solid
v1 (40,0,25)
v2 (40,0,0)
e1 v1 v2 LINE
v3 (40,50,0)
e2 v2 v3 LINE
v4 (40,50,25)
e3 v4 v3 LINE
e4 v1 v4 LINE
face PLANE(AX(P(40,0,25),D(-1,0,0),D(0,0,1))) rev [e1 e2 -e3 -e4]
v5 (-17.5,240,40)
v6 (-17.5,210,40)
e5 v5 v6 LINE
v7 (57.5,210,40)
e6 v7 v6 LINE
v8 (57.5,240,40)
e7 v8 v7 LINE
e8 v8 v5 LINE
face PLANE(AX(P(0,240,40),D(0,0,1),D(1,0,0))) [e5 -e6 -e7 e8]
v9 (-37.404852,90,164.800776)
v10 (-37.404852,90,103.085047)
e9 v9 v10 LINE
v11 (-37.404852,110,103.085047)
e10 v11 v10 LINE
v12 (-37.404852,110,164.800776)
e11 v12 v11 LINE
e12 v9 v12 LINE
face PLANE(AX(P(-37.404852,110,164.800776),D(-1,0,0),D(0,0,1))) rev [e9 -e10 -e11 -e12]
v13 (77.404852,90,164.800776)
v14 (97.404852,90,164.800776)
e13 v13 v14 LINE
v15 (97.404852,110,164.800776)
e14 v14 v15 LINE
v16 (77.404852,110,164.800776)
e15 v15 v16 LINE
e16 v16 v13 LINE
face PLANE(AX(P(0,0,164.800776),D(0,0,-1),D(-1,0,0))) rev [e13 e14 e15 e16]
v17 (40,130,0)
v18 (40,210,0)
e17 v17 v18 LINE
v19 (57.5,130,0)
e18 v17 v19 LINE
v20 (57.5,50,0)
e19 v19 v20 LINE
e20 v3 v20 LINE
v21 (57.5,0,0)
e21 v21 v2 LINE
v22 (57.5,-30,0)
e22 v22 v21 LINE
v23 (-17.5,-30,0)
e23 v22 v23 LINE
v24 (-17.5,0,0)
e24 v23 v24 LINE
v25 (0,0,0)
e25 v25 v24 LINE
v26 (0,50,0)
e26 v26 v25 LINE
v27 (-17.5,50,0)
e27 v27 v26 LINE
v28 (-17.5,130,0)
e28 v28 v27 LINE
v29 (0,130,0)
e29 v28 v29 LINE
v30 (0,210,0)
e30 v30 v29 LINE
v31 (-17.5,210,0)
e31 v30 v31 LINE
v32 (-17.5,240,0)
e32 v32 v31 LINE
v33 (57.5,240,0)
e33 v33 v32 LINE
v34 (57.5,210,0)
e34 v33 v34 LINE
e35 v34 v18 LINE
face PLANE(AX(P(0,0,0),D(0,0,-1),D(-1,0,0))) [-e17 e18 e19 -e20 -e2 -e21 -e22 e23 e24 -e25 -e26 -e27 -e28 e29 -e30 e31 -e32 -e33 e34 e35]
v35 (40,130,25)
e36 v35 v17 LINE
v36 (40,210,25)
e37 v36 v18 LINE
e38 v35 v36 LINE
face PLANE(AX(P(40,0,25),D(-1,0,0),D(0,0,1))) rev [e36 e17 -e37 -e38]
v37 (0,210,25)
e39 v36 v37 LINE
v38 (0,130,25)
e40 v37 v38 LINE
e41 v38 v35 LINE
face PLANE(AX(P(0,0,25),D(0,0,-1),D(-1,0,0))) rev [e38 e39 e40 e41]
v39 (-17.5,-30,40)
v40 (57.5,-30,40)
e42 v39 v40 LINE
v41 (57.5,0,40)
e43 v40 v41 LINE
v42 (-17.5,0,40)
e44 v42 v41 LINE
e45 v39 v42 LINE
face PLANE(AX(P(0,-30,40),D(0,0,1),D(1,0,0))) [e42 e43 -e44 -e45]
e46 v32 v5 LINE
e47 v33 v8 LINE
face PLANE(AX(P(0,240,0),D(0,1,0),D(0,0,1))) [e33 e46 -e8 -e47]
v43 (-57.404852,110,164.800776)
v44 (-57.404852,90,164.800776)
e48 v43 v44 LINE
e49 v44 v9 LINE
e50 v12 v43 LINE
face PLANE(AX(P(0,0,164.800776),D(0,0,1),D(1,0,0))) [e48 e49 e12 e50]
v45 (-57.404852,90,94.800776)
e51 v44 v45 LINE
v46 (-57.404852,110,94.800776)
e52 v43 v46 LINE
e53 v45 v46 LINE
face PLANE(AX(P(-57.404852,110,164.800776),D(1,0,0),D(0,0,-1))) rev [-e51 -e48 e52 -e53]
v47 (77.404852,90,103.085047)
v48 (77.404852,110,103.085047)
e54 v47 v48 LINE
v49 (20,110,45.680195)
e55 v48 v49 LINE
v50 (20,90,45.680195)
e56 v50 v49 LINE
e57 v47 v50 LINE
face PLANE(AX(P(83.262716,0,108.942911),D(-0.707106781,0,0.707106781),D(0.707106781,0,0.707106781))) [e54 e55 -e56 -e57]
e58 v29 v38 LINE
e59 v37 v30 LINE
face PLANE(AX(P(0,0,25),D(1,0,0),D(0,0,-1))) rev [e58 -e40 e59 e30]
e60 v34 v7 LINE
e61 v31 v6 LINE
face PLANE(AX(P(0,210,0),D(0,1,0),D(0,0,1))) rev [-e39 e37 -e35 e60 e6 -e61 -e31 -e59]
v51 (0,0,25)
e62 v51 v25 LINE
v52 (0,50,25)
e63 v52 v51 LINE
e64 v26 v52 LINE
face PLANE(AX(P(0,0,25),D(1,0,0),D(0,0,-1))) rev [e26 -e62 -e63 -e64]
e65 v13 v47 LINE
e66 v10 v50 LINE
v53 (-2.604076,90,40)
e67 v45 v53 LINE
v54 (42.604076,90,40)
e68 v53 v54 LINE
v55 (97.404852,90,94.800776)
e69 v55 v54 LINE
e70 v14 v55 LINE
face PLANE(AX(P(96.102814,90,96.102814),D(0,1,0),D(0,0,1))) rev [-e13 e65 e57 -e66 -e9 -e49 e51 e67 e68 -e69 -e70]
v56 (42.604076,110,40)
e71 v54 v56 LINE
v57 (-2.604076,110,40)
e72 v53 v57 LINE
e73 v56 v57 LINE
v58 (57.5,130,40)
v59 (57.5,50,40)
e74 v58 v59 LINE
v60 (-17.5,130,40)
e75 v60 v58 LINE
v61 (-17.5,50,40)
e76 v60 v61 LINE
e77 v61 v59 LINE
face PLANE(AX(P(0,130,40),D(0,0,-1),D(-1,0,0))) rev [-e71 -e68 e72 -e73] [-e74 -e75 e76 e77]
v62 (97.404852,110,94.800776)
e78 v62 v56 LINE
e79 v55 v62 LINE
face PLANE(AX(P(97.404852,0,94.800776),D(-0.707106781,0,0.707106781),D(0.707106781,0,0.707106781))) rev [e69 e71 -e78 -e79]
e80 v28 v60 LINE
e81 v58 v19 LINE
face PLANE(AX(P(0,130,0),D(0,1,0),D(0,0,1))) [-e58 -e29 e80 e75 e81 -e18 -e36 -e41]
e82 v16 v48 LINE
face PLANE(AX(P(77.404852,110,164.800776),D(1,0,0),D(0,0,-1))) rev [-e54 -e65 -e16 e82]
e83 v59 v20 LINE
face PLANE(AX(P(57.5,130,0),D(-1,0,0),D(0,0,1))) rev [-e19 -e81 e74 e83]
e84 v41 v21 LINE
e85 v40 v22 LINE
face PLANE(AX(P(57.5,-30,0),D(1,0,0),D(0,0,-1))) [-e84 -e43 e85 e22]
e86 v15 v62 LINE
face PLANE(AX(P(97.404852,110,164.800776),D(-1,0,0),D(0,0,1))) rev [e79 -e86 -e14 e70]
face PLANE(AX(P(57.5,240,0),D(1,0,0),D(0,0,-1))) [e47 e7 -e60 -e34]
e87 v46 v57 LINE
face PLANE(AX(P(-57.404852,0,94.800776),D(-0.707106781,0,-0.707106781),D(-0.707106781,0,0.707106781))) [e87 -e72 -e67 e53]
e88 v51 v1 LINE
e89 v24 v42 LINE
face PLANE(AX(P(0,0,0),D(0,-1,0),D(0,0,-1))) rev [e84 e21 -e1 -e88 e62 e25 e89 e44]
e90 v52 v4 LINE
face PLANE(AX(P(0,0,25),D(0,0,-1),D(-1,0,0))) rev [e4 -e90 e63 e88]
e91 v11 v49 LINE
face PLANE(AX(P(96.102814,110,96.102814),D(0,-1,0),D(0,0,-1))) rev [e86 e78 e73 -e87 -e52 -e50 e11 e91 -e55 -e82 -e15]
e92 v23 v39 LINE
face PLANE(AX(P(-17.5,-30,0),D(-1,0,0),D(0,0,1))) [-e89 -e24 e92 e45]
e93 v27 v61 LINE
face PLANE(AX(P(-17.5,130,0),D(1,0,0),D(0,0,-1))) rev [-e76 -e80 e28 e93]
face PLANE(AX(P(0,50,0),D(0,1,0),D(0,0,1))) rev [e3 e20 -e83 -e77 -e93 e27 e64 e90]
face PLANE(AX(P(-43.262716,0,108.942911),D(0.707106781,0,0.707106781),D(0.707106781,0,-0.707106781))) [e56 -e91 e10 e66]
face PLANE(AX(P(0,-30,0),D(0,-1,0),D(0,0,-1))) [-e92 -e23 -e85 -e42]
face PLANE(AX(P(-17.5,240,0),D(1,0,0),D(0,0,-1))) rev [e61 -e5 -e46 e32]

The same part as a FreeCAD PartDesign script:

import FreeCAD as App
import Part
import Sketcher

V = App.Vector

doc = App.newDocument("Part")
body = doc.addObject("PartDesign::Body", "Body")

sketch1 = doc.addObject("Sketcher::SketchObject", "Sketch")
body.addObject(sketch1)
sketch1.AttachmentSupport = (doc.XY_Plane, [""])
sketch1.MapMode = "FlatFace"
sketch1.addGeometry([
    Part.LineSegment(V(0, 210, 0), V(0, 0, 0)),
    Part.LineSegment(V(0, 0, 0), V(40, 0, 0)),
    Part.LineSegment(V(40, 0, 0), V(40, 210, 0)),
    Part.LineSegment(V(40, 210, 0), V(0, 210, 0)),
], False)
sketch1.addConstraint([
    Sketcher.Constraint("Coincident", 0, 2, 1, 1),
    Sketcher.Constraint("Coincident", 1, 2, 2, 1),
    Sketcher.Constraint("Coincident", 2, 2, 3, 1),
    Sketcher.Constraint("Coincident", 3, 2, 0, 1),
    Sketcher.Constraint("Vertical", 0),
    Sketcher.Constraint("Horizontal", 1),
    Sketcher.Constraint("Vertical", 2),
    Sketcher.Constraint("Horizontal", 3),
    Sketcher.Constraint("Coincident", 0, 2, -1, 1),
    Sketcher.Constraint("DistanceX", 1, 1, 1, 2, 40.0),
    Sketcher.Constraint("DistanceY", 0, 2, 0, 1, 210.0),
])
pad1 = doc.addObject("PartDesign::Pad", "Pad")
body.addObject(pad1)
pad1.Profile = sketch1
pad1.Length = 25

sketch2 = doc.addObject("Sketcher::SketchObject", "Sketch001")
body.addObject(sketch2)
sketch2.AttachmentSupport = (doc.XZ_Plane, [""])
sketch2.MapMode = "FlatFace"
sketch2.AttachmentOffset = App.Placement(V(0, 0, -210), App.Rotation())
sketch2.addGeometry([
    Part.LineSegment(V(-18, 0, 0), V(-18, 40, 0)),
    Part.LineSegment(V(-18, 40, 0), V(58, 40, 0)),
    Part.LineSegment(V(58, 40, 0), V(58, 0, 0)),
    Part.LineSegment(V(58, 0, 0), V(-18, 0, 0)),
], False)
sketch2.addConstraint([
    Sketcher.Constraint("Coincident", 0, 2, 1, 1),
    Sketcher.Constraint("Coincident", 1, 2, 2, 1),
    Sketcher.Constraint("Coincident", 2, 2, 3, 1),
    Sketcher.Constraint("Coincident", 3, 2, 0, 1),
    Sketcher.Constraint("Vertical", 0),
    Sketcher.Constraint("Horizontal", 1),
    Sketcher.Constraint("Vertical", 2),
    Sketcher.Constraint("Horizontal", 3),
    Sketcher.Constraint("PointOnObject", 2, 2, -1),
    Sketcher.Constraint("DistanceX", 1, 1, 1, 2, 75.0),
    Sketcher.Constraint("DistanceY", 0, 1, 0, 2, 40.0),
    Sketcher.Constraint("DistanceX", 0, 2, -1, 1, 17.5),
])
pad2 = doc.addObject("PartDesign::Pad", "Pad001")
body.addObject(pad2)
pad2.Profile = sketch2
pad2.Length = 30
pad2.Reversed = True

sketch3 = doc.addObject("Sketcher::SketchObject", "Sketch002")
body.addObject(sketch3)
sketch3.AttachmentSupport = (doc.XZ_Plane, [""])
sketch3.MapMode = "FlatFace"
sketch3.addGeometry([
    Part.LineSegment(V(58, 0, 0), V(58, 40, 0)),
    Part.LineSegment(V(58, 40, 0), V(-18, 40, 0)),
    Part.LineSegment(V(-18, 40, 0), V(-18, 0, 0)),
    Part.LineSegment(V(-18, 0, 0), V(58, 0, 0)),
], False)
sketch3.addConstraint([
    Sketcher.Constraint("Coincident", 0, 2, 1, 1),
    Sketcher.Constraint("Coincident", 1, 2, 2, 1),
    Sketcher.Constraint("Coincident", 2, 2, 3, 1),
    Sketcher.Constraint("Coincident", 3, 2, 0, 1),
    Sketcher.Constraint("Vertical", 0),
    Sketcher.Constraint("Horizontal", 1),
    Sketcher.Constraint("Vertical", 2),
    Sketcher.Constraint("Horizontal", 3),
    Sketcher.Constraint("PointOnObject", 2, 2, -1),
    Sketcher.Constraint("DistanceX", 1, 2, 1, 1, 75.0),
    Sketcher.Constraint("DistanceY", 0, 1, 0, 2, 40.0),
    Sketcher.Constraint("DistanceX", -1, 1, 0, 2, 57.5),
])
pad3 = doc.addObject("PartDesign::Pad", "Pad002")
body.addObject(pad3)
pad3.Profile = sketch3
pad3.Length = 30

sketch4 = doc.addObject("Sketcher::SketchObject", "Sketch003")
body.addObject(sketch4)
sketch4.AttachmentSupport = (doc.XZ_Plane, [""])
sketch4.MapMode = "FlatFace"
sketch4.AttachmentOffset = App.Placement(V(0, 0, -50), App.Rotation())
sketch4.addGeometry([
    Part.LineSegment(V(58, 0, 0), V(-18, 0, 0)),
    Part.LineSegment(V(-18, 0, 0), V(-18, 40, 0)),
    Part.LineSegment(V(-18, 40, 0), V(58, 40, 0)),
    Part.LineSegment(V(58, 40, 0), V(58, 0, 0)),
], False)
sketch4.addConstraint([
    Sketcher.Constraint("Coincident", 0, 2, 1, 1),
    Sketcher.Constraint("Coincident", 1, 2, 2, 1),
    Sketcher.Constraint("Coincident", 2, 2, 3, 1),
    Sketcher.Constraint("Coincident", 3, 2, 0, 1),
    Sketcher.Constraint("Horizontal", 0),
    Sketcher.Constraint("Vertical", 1),
    Sketcher.Constraint("Horizontal", 2),
    Sketcher.Constraint("Vertical", 3),
    Sketcher.Constraint("PointOnObject", 0, 2, -1),
    Sketcher.Constraint("DistanceX", 0, 2, 0, 1, 75.0),
    Sketcher.Constraint("DistanceY", 1, 1, 1, 2, 40.0),
    Sketcher.Constraint("DistanceX", 0, 2, -1, 1, 17.5),
])
pad4 = doc.addObject("PartDesign::Pad", "Pad003")
body.addObject(pad4)
pad4.Profile = sketch4
pad4.Length = 80
pad4.Reversed = True

sketch5 = doc.addObject("Sketcher::SketchObject", "Sketch004")
body.addObject(sketch5)
sketch5.Placement = App.Placement(V(11.25, 0, 11.25), App.Rotation(V(0.707106781, 0, -0.707106781), V(0, 0.999999999, 0), V(0.707106781, 0, 0.707106781), "ZXY"))
sketch5.addGeometry([
    Part.LineSegment(V(-18, 110, 0), V(-18, 90, 0)),
    Part.LineSegment(V(-18, 90, 0), V(2, 90, 0)),
    Part.LineSegment(V(2, 90, 0), V(2, 110, 0)),
    Part.LineSegment(V(2, 110, 0), V(-18, 110, 0)),
], False)
sketch5.addConstraint([
    Sketcher.Constraint("Coincident", 0, 2, 1, 1),
    Sketcher.Constraint("Coincident", 1, 2, 2, 1),
    Sketcher.Constraint("Coincident", 2, 2, 3, 1),
    Sketcher.Constraint("Coincident", 3, 2, 0, 1),
    Sketcher.Constraint("Vertical", 0),
    Sketcher.Constraint("Horizontal", 1),
    Sketcher.Constraint("Vertical", 2),
    Sketcher.Constraint("Horizontal", 3),
    Sketcher.Constraint("Equal", 3, 0),
    Sketcher.Constraint("DistanceX", 1, 1, 1, 2, 20.0),
    Sketcher.Constraint("DistanceY", -1, 1, 0, 2, 90.0),
    Sketcher.Constraint("DistanceX", 0, 2, -1, 1, 18.15864),
])
pad5 = doc.addObject("PartDesign::Pad", "Pad004")
body.addObject(pad5)
pad5.Profile = sketch5
pad5.Length = 120

sketch6 = doc.addObject("Sketcher::SketchObject", "Sketch005")
body.addObject(sketch6)
sketch6.Placement = App.Placement(V(8.75, 0, -8.75), App.Rotation(V(0.707106781, 0, 0.707106781), V(0, 0.999999999, 0), V(-0.707106781, 0, 0.707106781), "ZXY"))
sketch6.addGeometry([
    Part.LineSegment(V(26, 110, 0), V(26, 90, 0)),
    Part.LineSegment(V(26, 90, 0), V(46, 90, 0)),
    Part.LineSegment(V(46, 90, 0), V(46, 110, 0)),
    Part.LineSegment(V(46, 110, 0), V(26, 110, 0)),
], False)
sketch6.addConstraint([
    Sketcher.Constraint("Coincident", 0, 2, 1, 1),
    Sketcher.Constraint("Coincident", 1, 2, 2, 1),
    Sketcher.Constraint("Coincident", 2, 2, 3, 1),
    Sketcher.Constraint("Coincident", 3, 2, 0, 1),
    Sketcher.Constraint("Vertical", 0),
    Sketcher.Constraint("Horizontal", 1),
    Sketcher.Constraint("Vertical", 2),
    Sketcher.Constraint("Horizontal", 3),
    Sketcher.Constraint("Equal", 3, 0),
    Sketcher.Constraint("DistanceX", 1, 1, 1, 2, 20.0),
    Sketcher.Constraint("DistanceY", -1, 1, 0, 2, 90.0),
    Sketcher.Constraint("DistanceX", -1, 1, 0, 2, 26.442911),
])
pad6 = doc.addObject("PartDesign::Pad", "Pad005")
body.addObject(pad6)
pad6.Profile = sketch6
pad6.Length = 120

sketch7 = doc.addObject("Sketcher::SketchObject", "Sketch006")
body.addObject(sketch7)
sketch7.AttachmentSupport = (doc.XY_Plane, [""])
sketch7.MapMode = "FlatFace"
sketch7.AttachmentOffset = App.Placement(V(0, 0, 94.800776), App.Rotation())
sketch7.addGeometry([
    Part.LineSegment(V(-57, 110, 0), V(-57, 90, 0)),
    Part.LineSegment(V(-57, 90, 0), V(-37, 90, 0)),
    Part.LineSegment(V(-37, 90, 0), V(-37, 110, 0)),
    Part.LineSegment(V(-37, 110, 0), V(-57, 110, 0)),
    Part.LineSegment(V(77, 110, 0), V(77, 90, 0)),
    Part.LineSegment(V(77, 90, 0), V(97, 90, 0)),
    Part.LineSegment(V(97, 90, 0), V(97, 110, 0)),
    Part.LineSegment(V(97, 110, 0), V(77, 110, 0)),
], False)
sketch7.addConstraint([
    Sketcher.Constraint("Coincident", 0, 2, 1, 1),
    Sketcher.Constraint("Coincident", 1, 2, 2, 1),
    Sketcher.Constraint("Coincident", 2, 2, 3, 1),
    Sketcher.Constraint("Coincident", 3, 2, 0, 1),
    Sketcher.Constraint("Coincident", 4, 2, 5, 1),
    Sketcher.Constraint("Coincident", 5, 2, 6, 1),
    Sketcher.Constraint("Coincident", 6, 2, 7, 1),
    Sketcher.Constraint("Coincident", 7, 2, 4, 1),
    Sketcher.Constraint("Vertical", 0),
    Sketcher.Constraint("Horizontal", 1),
    Sketcher.Constraint("Vertical", 2),
    Sketcher.Constraint("Horizontal", 3),
    Sketcher.Constraint("Vertical", 4),
    Sketcher.Constraint("Horizontal", 5),
    Sketcher.Constraint("Vertical", 6),
    Sketcher.Constraint("Horizontal", 7),
    Sketcher.Constraint("Horizontal", 1, 2, 4, 2),
    Sketcher.Constraint("Horizontal", 3, 2, 6, 2),
    Sketcher.Constraint("Equal", 3, 5),
    Sketcher.Constraint("Equal", 7, 0),
    Sketcher.Constraint("DistanceX", 1, 1, 1, 2, 20.0),
    Sketcher.Constraint("DistanceY", -1, 1, 0, 2, 90.0),
    Sketcher.Constraint("DistanceX", 0, 2, -1, 1, 57.404852),
    Sketcher.Constraint("DistanceX", -1, 1, 4, 2, 77.404852),
])
pad7 = doc.addObject("PartDesign::Pad", "Pad006")
body.addObject(pad7)
pad7.Profile = sketch7
pad7.Length = 70

doc.recompute()
